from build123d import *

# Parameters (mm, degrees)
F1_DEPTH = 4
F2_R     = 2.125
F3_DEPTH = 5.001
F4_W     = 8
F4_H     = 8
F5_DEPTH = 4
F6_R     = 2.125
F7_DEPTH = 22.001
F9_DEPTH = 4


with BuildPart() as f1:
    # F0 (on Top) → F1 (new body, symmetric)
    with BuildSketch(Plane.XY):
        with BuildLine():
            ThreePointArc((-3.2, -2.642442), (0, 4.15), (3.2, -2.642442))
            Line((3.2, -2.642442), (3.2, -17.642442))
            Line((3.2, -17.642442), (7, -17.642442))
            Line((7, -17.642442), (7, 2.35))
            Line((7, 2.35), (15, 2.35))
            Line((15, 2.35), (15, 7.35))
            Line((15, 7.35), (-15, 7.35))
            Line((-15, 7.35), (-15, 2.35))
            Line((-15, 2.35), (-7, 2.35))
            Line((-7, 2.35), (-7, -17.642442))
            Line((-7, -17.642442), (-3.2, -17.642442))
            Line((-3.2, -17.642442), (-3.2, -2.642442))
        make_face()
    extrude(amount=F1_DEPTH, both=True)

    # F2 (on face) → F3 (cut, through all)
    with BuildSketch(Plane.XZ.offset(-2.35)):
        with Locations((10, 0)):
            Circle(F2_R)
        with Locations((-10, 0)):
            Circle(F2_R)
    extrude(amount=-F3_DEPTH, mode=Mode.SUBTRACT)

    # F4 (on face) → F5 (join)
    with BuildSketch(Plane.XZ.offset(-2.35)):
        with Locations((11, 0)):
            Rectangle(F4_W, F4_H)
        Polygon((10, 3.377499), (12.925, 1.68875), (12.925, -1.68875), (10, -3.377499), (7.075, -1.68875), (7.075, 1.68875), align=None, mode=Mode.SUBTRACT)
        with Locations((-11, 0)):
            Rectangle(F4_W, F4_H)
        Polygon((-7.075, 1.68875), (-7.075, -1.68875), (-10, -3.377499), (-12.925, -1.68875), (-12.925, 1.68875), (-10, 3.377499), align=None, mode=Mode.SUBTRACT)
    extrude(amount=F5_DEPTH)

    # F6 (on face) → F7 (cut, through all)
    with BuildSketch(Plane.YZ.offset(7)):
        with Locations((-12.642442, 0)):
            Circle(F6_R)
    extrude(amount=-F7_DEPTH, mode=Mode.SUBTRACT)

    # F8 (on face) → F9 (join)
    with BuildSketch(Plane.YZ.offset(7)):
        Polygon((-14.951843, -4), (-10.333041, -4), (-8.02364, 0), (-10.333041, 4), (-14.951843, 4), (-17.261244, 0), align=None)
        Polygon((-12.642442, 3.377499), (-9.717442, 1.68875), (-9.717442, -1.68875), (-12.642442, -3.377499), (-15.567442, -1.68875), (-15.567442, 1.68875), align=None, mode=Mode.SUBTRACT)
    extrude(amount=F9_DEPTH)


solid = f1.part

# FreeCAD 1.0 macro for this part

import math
import FreeCAD as App
import Part
import Sketcher
from FreeCAD import Vector
Q = App.Units.Quantity


def add_polygon(sketch, points):
    """Adds a closed chain of lines whose ends are joined by coincident constraints."""
    first, n = sketch.GeometryCount, len(points)
    for a, b in zip(points, points[1:] + points[:1]):
        sketch.addGeometry(Part.LineSegment(App.Vector(*a, 0), App.Vector(*b, 0)), False)
    for i in range(n):
        sketch.addConstraint(Sketcher.Constraint("Coincident", first + i, 2, first + (i + 1) % n, 1))

doc = App.newDocument("Part")
params = doc.addObject("Spreadsheet::Sheet", "Params")
for row, (alias, value) in enumerate([
    ("sketch1_width", "8 mm"),
    ("sketch1_width2", "30 mm"),
    ("sketch1_height", "15 mm"),
    ("sketch1_height2", "5 mm"),
    ("sketch1_radius", "4.15 mm"),
    ("pad1_length", "8 mm"),
    ("sketch2_diameter", "4.25 mm"),
    ("sketch3_width", "8 mm"),
    ("pad2_length", "4 mm"),
    ("sketch4_diameter", "4.25 mm"),
    ("pad3_length", "4 mm"),
], start=1):
    params.set(f"A{row}", alias)
    params.set(f"B{row}", "=" + value)
    params.setAlias(f"B{row}", alias)

body = doc.addObject("PartDesign::Body", "Body")

# Sketch on XY plane
sketch1 = doc.addObject("Sketcher::SketchObject", "Sketch")
body.addObject(sketch1)
sketch1.AttachmentSupport = (doc.XY_Plane, [""])
sketch1.MapMode = "FlatFace"
sketch1.addGeometry([
    Part.ArcOfCircle(Part.Circle(Vector(0, 0, 0), Vector(0, 0, 1), 4.15), math.radians(-39.548638), math.radians(219.548638)),  # 0
    Part.LineSegment(Vector(3.2, -2.642442, 0), Vector(3.2, -17.642442, 0)),  # 1
    Part.LineSegment(Vector(3.2, -17.642442, 0), Vector(7, -17.642442, 0)),  # 2
    Part.LineSegment(Vector(7, -17.642442, 0), Vector(7, 2.35, 0)),  # 3
    Part.LineSegment(Vector(7, 2.35, 0), Vector(15, 2.35, 0)),  # 4
    Part.LineSegment(Vector(15, 2.35, 0), Vector(15, 7.35, 0)),  # 5
    Part.LineSegment(Vector(15, 7.35, 0), Vector(-15, 7.35, 0)),  # 6
    Part.LineSegment(Vector(-15, 7.35, 0), Vector(-15, 2.35, 0)),  # 7
    Part.LineSegment(Vector(-15, 2.35, 0), Vector(-7, 2.35, 0)),  # 8
    Part.LineSegment(Vector(-7, 2.35, 0), Vector(-7, -17.642442, 0)),  # 9
    Part.LineSegment(Vector(-7, -17.642442, 0), Vector(-3.2, -17.642442, 0)),  # 10
    Part.LineSegment(Vector(-3.2, -17.642442, 0), Vector(-3.2, -2.642442, 0)),  # 11
], False)
sketch1.addConstraint([
    Sketcher.Constraint("Coincident", 0, 1, 1, 1),
    Sketcher.Constraint("Coincident", 1, 2, 2, 1),
    Sketcher.Constraint("Coincident", 2, 2, 3, 1),
    Sketcher.Constraint("Coincident", 3, 2, 4, 1),
    Sketcher.Constraint("Coincident", 4, 2, 5, 1),
    Sketcher.Constraint("Coincident", 5, 2, 6, 1),
    Sketcher.Constraint("Coincident", 6, 2, 7, 1),
    Sketcher.Constraint("Coincident", 7, 2, 8, 1),
    Sketcher.Constraint("Coincident", 8, 2, 9, 1),
    Sketcher.Constraint("Coincident", 9, 2, 10, 1),
    Sketcher.Constraint("Coincident", 10, 2, 11, 1),
    Sketcher.Constraint("Coincident", 11, 2, 0, 2),
    Sketcher.Constraint("Vertical", 1),
    Sketcher.Constraint("Horizontal", 2),
    Sketcher.Constraint("Vertical", 3),
    Sketcher.Constraint("Horizontal", 4),
    Sketcher.Constraint("Vertical", 5),
    Sketcher.Constraint("Horizontal", 6),
    Sketcher.Constraint("Vertical", 7),
    Sketcher.Constraint("Horizontal", 8),
    Sketcher.Constraint("Vertical", 9),
    Sketcher.Constraint("Horizontal", 10),
    Sketcher.Constraint("Vertical", 11),
    Sketcher.Constraint("Coincident", 0, 3, -1, 1),
    Sketcher.Constraint("Symmetric", 4, 2, 7, 2, -2),
    Sketcher.Constraint("Symmetric", 2, 2, 9, 2, -2),
    Sketcher.Constraint("Horizontal", 0, 1, 11, 2),
    Sketcher.Constraint("DistanceX", 4, 1, 4, 2, 8.0),
    Sketcher.Constraint("DistanceX", 6, 2, 6, 1, 30.0),
    Sketcher.Constraint("DistanceY", 1, 2, 1, 1, 15.0),
    Sketcher.Constraint("DistanceY", 5, 1, 5, 2, 5.0),
    Sketcher.Constraint("Radius", 0, 4.15),
    Sketcher.Constraint("DistanceX", 2, 1, 2, 2, 3.8),
    Sketcher.Constraint("DistanceY", -1, 1, 3, 2, 2.35),
])
sketch1.setExpression("Constraints[27]", "Params.sketch1_width")
sketch1.setExpression("Constraints[28]", "Params.sketch1_width2")
sketch1.setExpression("Constraints[29]", "Params.sketch1_height")
sketch1.setExpression("Constraints[30]", "Params.sketch1_height2")
sketch1.setExpression("Constraints[31]", "Params.sketch1_radius")
pad1 = doc.addObject("PartDesign::Pad", "Pad")
body.addObject(pad1)
pad1.Profile = sketch1
pad1.setExpression("Length", "Params.pad1_length")
pad1.Midplane = True

# Sketch on XZ plane
sketch2 = doc.addObject("Sketcher::SketchObject", "Sketch001")
body.addObject(sketch2)
sketch2.AttachmentSupport = (doc.XZ_Plane, [""])
sketch2.MapMode = "FlatFace"
sketch2.AttachmentOffset = App.Placement(Vector(0, 0, -2.35), App.Rotation())
sketch2.addGeometry([
    Part.Circle(Vector(10, 0, 0), Vector(0, 0, 1), 2.125),
    Part.Circle(Vector(-10, 0, 0), Vector(0, 0, 1), 2.125),
], False)
sketch2.addConstraint([
    Sketcher.Constraint("Equal", 0, 1),
    Sketcher.Constraint("Symmetric", 0, 3, 1, 3, -1, 1),
    Sketcher.Constraint("PointOnObject", 0, 3, -1),
    Sketcher.Constraint("Diameter", 0, 4.25),
    Sketcher.Constraint("DistanceX", -1, 1, 0, 3, 10.0),
])
sketch2.setExpression("Constraints[3]", "Params.sketch2_diameter")
pocket1 = doc.addObject("PartDesign::Pocket", "Pocket")
body.addObject(pocket1)
pocket1.Profile = sketch2
pocket1.Type = "ThroughAll"

# Sketch on XZ plane
sketch3 = doc.addObject("Sketcher::SketchObject", "Sketch002")
body.addObject(sketch3)
sketch3.AttachmentSupport = (doc.XZ_Plane, [""])
sketch3.MapMode = "FlatFace"
sketch3.AttachmentOffset = App.Placement(Vector(0, 0, -2.35), App.Rotation())
add_polygon(sketch3, [(7, 4), (7, -4), (15, -4), (15, 4)])  # lines 0-3
add_polygon(sketch3, [(7.075, 1.68875), (10, 3.377499), (12.925, 1.68875), (12.925, -1.68875), (10, -3.377499), (7.075, -1.68875)])  # lines 4-9
add_polygon(sketch3, [(-15, 4), (-15, -4), (-7, -4), (-7, 4)])  # lines 10-13
add_polygon(sketch3, [(-10, 3.377499), (-7.075, 1.68875), (-7.075, -1.68875), (-10, -3.377499), (-12.925, -1.68875), (-12.925, 1.68875)])  # lines 14-19
sketch3.addConstraint([
    Sketcher.Constraint("Vertical", 0),
    Sketcher.Constraint("Horizontal", 1),
    Sketcher.Constraint("Vertical", 2),
    Sketcher.Constraint("Horizontal", 3),
    Sketcher.Constraint("Vertical", 6),
    Sketcher.Constraint("Vertical", 9),
    Sketcher.Constraint("Vertical", 10),
    Sketcher.Constraint("Horizontal", 11),
    Sketcher.Constraint("Vertical", 12),
    Sketcher.Constraint("Horizontal", 13),
    Sketcher.Constraint("Vertical", 15),
    Sketcher.Constraint("Vertical", 18),
    Sketcher.Constraint("Symmetric", 2, 2, 10, 2, -1, 1),
    Sketcher.Constraint("Symmetric", 0, 2, 12, 2, -1, 1),
    Sketcher.Constraint("Symmetric", 8, 2, 14, 2, -1, 1),
    Sketcher.Constraint("Symmetric", 4, 2, 16, 2, -1, 1),
    Sketcher.Constraint("Symmetric", 5, 2, 17, 2, -1, 1),
    Sketcher.Constraint("Symmetric", 7, 2, 19, 2, -1, 1),
    Sketcher.Constraint("Symmetric", 7, 2, 16, 2, -2),
    Sketcher.Constraint("Parallel", 4, 7),
    Sketcher.Constraint("Parallel", 5, 8),
    Sketcher.Constraint("Parallel", 7, 16),
    Sketcher.Constraint("Parallel", 16, 19),
    Sketcher.Constraint("Horizontal", 6, 2, 8, 2),
    Sketcher.Constraint("Horizontal", 5, 2, 9, 2),
    Sketcher.Constraint("Horizontal", 1, 2, 10, 2),
    Sketcher.Constraint("Equal", 13, 0),
    Sketcher.Constraint("DistanceX", 1, 1, 1, 2, 8.0),
    Sketcher.Constraint("Angle", 4, Q("29.999992 deg")),
    Sketcher.Constraint("DistanceX", -1, 1, 0, 2, 7.0),
    Sketcher.Constraint("DistanceX", -1, 1, 4, 2, 10.0),
    Sketcher.Constraint("DistanceX", 8, 2, 6, 2, 5.85),
    Sketcher.Constraint("DistanceY", 6, 2, 6, 1, 3.3775),
])
sketch3.setExpression("Constraints[47]", "Params.sketch3_width")
pad2 = doc.addObject("PartDesign::Pad", "Pad001")
body.addObject(pad2)
pad2.Profile = sketch3
pad2.setExpression("Length", "Params.pad2_length")

# Sketch on YZ plane
sketch4 = doc.addObject("Sketcher::SketchObject", "Sketch003")
body.addObject(sketch4)
sketch4.AttachmentSupport = (doc.YZ_Plane, [""])
sketch4.MapMode = "FlatFace"
sketch4.AttachmentOffset = App.Placement(Vector(0, 0, 7), App.Rotation())
sketch4.addGeometry(Part.Circle(Vector(-12.642442, 0, 0), Vector(0, 0, 1), 2.125), False)
sketch4.addConstraint([
    Sketcher.Constraint("PointOnObject", 0, 3, -1),
    Sketcher.Constraint("Diameter", 0, 4.25),
    Sketcher.Constraint("DistanceX", 0, 3, -1, 1, 12.642442),
])
sketch4.setExpression("Constraints[1]", "Params.sketch4_diameter")
pocket2 = doc.addObject("PartDesign::Pocket", "Pocket001")
body.addObject(pocket2)
pocket2.Profile = sketch4
pocket2.Type = "ThroughAll"

# Sketch on YZ plane
sketch5 = doc.addObject("Sketcher::SketchObject", "Sketch004")
body.addObject(sketch5)
sketch5.AttachmentSupport = (doc.YZ_Plane, [""])
sketch5.MapMode = "FlatFace"
sketch5.AttachmentOffset = App.Placement(Vector(0, 0, 7), App.Rotation())
add_polygon(sketch5, [(-14.951843, -4), (-10.333041, -4), (-8.02364, 0), (-10.333041, 4), (-14.951843, 4), (-17.261244, 0)])  # lines 0-5
add_polygon(sketch5, [(-15.567442, 1.68875), (-12.642442, 3.377499), (-9.717442, 1.68875), (-9.717442, -1.68875), (-12.642442, -3.377499), (-15.567442, -1.68875)])  # lines 6-11
sketch5.addConstraint([
    Sketcher.Constraint("Horizontal", 0),
    Sketcher.Constraint("Horizontal", 3),
    Sketcher.Constraint("Vertical", 8),
    Sketcher.Constraint("Vertical", 11),
    Sketcher.Constraint("Symmetric", 0, 2, 2, 2, -1),
    Sketcher.Constraint("Symmetric", 6, 2, 9, 2, -1),
    Sketcher.Constraint("PointOnObject", 1, 2, -1),
    Sketcher.Constraint("PointOnObject", 4, 2, -1),
    Sketcher.Constraint("Parallel", 1, 4),
    Sketcher.Constraint("Parallel", 2, 5),
    Sketcher.Constraint("Perpendicular", 5, 6),
    Sketcher.Constraint("Perpendicular", 4, 7),
    Sketcher.Constraint("Parallel", 6, 9),
    Sketcher.Constraint("Parallel", 7, 10),
    Sketcher.Constraint("Horizontal", 8, 2, 10, 2),
    Sketcher.Constraint("Angle", 1, Q("60.000001 deg")),
    Sketcher.Constraint("DistanceY", 0, 2, -1, 1, 4.0),
    Sketcher.Constraint("DistanceY", 8, 2, 8, 1, 3.3775),
    Sketcher.Constraint("DistanceX", 6, 2, 7, 2, 2.925),
    Sketcher.Constraint("DistanceX", 3, 2, 6, 2, 2.309401),
    Sketcher.Constraint("DistanceX", 6, 2, 2, 2, 2.309401),
    Sketcher.Constraint("DistanceX", 0, 2, -1, 1, 10.333041),
])
pad3 = doc.addObject("PartDesign::Pad", "Pad002")
body.addObject(pad3)
pad3.Profile = sketch5
pad3.setExpression("Length", "Params.pad3_length")

doc.recompute()
